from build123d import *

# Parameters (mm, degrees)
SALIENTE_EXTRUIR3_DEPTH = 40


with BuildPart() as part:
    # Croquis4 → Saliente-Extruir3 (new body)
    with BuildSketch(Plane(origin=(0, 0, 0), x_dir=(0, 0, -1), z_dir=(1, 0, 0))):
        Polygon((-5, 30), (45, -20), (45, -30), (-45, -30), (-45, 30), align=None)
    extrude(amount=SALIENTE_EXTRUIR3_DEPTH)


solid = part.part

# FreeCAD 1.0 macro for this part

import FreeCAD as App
import Part
import Sketcher

V = App.Vector


def add_polygon(sketch, points):
    """Adds a closed chain of lines whose ends are joined by coincident constraints."""
    first, n = sketch.GeometryCount, len(points)
    for a, b in zip(points, points[1:] + points[:1]):
        sketch.addGeometry(Part.LineSegment(App.Vector(*a, 0), App.Vector(*b, 0)), False)
    for i in range(n):
        sketch.addConstraint(Sketcher.Constraint("Coincident", first + i, 2, first + (i + 1) % n, 1))

doc = App.newDocument("Part")
body = doc.addObject("PartDesign::Body", "Body")

# Sketch on YZ plane
sketch1 = doc.addObject("Sketcher::SketchObject", "Sketch")
body.addObject(sketch1)
sketch1.AttachmentSupport = (doc.YZ_Plane, [""])
sketch1.MapMode = "FlatFace"
add_polygon(sketch1, [(-20, -45), (30, 5), (30, 45), (-30, 45), (-30, -45)])  # lines 0-4
sketch1.addConstraint([
    Sketcher.Constraint("Vertical", 1),
    Sketcher.Constraint("Horizontal", 2),
    Sketcher.Constraint("Vertical", 3),
    Sketcher.Constraint("Horizontal", 4),
    Sketcher.Constraint("Symmetric", 1, 2, 3, 2, -1, 1),
    Sketcher.Constraint("DistanceX", 2, 2, 2, 1, 60.0),
    Sketcher.Constraint("DistanceX", 4, 1, 4, 2, 10.0),
    Sketcher.Constraint("DistanceY", 1, 1, 1, 2, 40.0),
    Sketcher.Constraint("DistanceY", 3, 2, 3, 1, 90.0),
])
pad1 = doc.addObject("PartDesign::Pad", "Pad")
body.addObject(pad1)
pad1.Profile = sketch1
pad1.Length = 40

doc.recompute()
